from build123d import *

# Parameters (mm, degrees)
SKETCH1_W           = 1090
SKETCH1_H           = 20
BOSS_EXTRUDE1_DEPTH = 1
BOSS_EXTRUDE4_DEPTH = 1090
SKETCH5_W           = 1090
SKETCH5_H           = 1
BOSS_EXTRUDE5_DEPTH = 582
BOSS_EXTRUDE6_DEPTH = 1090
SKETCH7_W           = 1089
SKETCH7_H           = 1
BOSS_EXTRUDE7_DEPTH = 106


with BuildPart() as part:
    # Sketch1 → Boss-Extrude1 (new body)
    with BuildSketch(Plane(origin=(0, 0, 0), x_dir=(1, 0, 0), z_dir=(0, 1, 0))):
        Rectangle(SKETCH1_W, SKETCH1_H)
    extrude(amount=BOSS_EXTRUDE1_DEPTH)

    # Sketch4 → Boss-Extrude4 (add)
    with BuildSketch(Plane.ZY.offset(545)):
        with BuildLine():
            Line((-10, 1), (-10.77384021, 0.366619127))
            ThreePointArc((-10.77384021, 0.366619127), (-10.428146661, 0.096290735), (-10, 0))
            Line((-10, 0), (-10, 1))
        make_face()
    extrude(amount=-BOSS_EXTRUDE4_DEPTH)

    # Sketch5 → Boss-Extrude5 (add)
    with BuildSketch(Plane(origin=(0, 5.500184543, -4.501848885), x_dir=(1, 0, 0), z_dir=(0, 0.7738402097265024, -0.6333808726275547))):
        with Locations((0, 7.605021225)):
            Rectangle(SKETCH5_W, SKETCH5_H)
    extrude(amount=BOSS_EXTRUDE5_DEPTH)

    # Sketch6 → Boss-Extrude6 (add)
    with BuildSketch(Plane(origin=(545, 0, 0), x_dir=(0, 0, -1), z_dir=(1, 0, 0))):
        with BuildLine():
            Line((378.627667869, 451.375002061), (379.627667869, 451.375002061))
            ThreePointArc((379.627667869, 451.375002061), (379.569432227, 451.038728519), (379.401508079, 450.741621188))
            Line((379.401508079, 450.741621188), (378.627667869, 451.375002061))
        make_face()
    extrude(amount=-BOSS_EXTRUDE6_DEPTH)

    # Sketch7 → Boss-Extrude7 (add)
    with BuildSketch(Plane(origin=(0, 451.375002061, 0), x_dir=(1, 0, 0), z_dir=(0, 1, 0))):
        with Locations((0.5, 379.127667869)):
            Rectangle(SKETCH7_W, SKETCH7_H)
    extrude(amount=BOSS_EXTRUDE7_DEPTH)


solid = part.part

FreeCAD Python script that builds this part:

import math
import FreeCAD as App
import Part
import Sketcher
Q = App.Units.Quantity

doc = App.newDocument("Part")
body = doc.addObject("PartDesign::Body", "Body")

# Sketch on XZ plane
sketch1 = doc.addObject("Sketcher::SketchObject", "Sketch")
body.addObject(sketch1)
sketch1.AttachmentSupport = (doc.XZ_Plane, [""])
sketch1.MapMode = "FlatFace"
sketch1.addGeometry([
    Part.LineSegment(App.Vector(-545, -10, 0), App.Vector(-545, 10, 0)),
    Part.LineSegment(App.Vector(-545, 10, 0), App.Vector(545, 10, 0)),
    Part.LineSegment(App.Vector(545, 10, 0), App.Vector(545, -10, 0)),
    Part.LineSegment(App.Vector(545, -10, 0), App.Vector(-545, -10, 0)),
], False)
sketch1.addConstraint([
    Sketcher.Constraint("Coincident", 0, 2, 1, 1),
    Sketcher.Constraint("Coincident", 1, 2, 2, 1),
    Sketcher.Constraint("Coincident", 2, 2, 3, 1),
    Sketcher.Constraint("Coincident", 3, 2, 0, 1),
    Sketcher.Constraint("Vertical", 0),
    Sketcher.Constraint("Horizontal", 1),
    Sketcher.Constraint("Vertical", 2),
    Sketcher.Constraint("Horizontal", 3),
    Sketcher.Constraint("Symmetric", 0, 2, 2, 2, -1, 1),
    Sketcher.Constraint("DistanceX", 1, 1, 1, 2, 1090.0),
    Sketcher.Constraint("DistanceY", 0, 1, 0, 2, 20.0),
])
pad1 = doc.addObject("PartDesign::Pad", "Pad")
body.addObject(pad1)
pad1.Profile = sketch1
pad1.Length = 1
pad1.Reversed = True

# Sketch on YZ plane
sketch2 = doc.addObject("Sketcher::SketchObject", "Sketch001")
body.addObject(sketch2)
sketch2.AttachmentSupport = (doc.YZ_Plane, [""])
sketch2.MapMode = "FlatFace"
sketch2.AttachmentOffset = App.Placement(App.Vector(0, 0, -545), App.Rotation())
sketch2.addGeometry([
    Part.LineSegment(App.Vector(1, -10, 0), App.Vector(0.4, -10.8, 0)),
    Part.ArcOfCircle(Part.Circle(App.Vector(1, -10, 0), App.Vector(0, 0, 1), 1), math.radians(-180), math.radians(-129)),
    Part.LineSegment(App.Vector(0, -10, 0), App.Vector(1, -10, 0)),
], False)
sketch2.addConstraint([
    Sketcher.Constraint("Coincident", 0, 2, 1, 2),
    Sketcher.Constraint("Coincident", 1, 1, 2, 1),
    Sketcher.Constraint("Coincident", 2, 2, 0, 1),
    Sketcher.Constraint("Horizontal", 2),
    Sketcher.Constraint("Coincident", 2, 2, 1, 3),
    Sketcher.Constraint("PointOnObject", 1, 1, -2),
    Sketcher.Constraint("Radius", 1, 1.0),
    Sketcher.Constraint("DistanceY", 1, 3, -1, 1, 10.0),
    Sketcher.Constraint("Angle", 0, Q("-129.3 deg")),
])
pad2 = doc.addObject("PartDesign::Pad", "Pad001")
body.addObject(pad2)
pad2.Profile = sketch2
pad2.Length = 1090

# Sketch on an angled plane
sketch3 = doc.addObject("Sketcher::SketchObject", "Sketch002")
body.addObject(sketch3)
sketch3.Placement = App.Placement(App.Vector(0, 5.500185, -4.501849), App.Rotation(App.Vector(1, 0, 0), App.Vector(0, -0.633380873, -0.77384021), App.Vector(0, 0.77384021, -0.633380873), "ZXY"))
sketch3.addGeometry([
    Part.LineSegment(App.Vector(-545, 8.1, 0), App.Vector(-545, 7.1, 0)),
    Part.LineSegment(App.Vector(-545, 7.1, 0), App.Vector(545, 7.1, 0)),
    Part.LineSegment(App.Vector(545, 7.1, 0), App.Vector(545, 8.1, 0)),
    Part.LineSegment(App.Vector(545, 8.1, 0), App.Vector(-545, 8.1, 0)),
], False)
sketch3.addConstraint([
    Sketcher.Constraint("Coincident", 0, 2, 1, 1),
    Sketcher.Constraint("Coincident", 1, 2, 2, 1),
    Sketcher.Constraint("Coincident", 2, 2, 3, 1),
    Sketcher.Constraint("Coincident", 3, 2, 0, 1),
    Sketcher.Constraint("Vertical", 0),
    Sketcher.Constraint("Horizontal", 1),
    Sketcher.Constraint("Vertical", 2),
    Sketcher.Constraint("Horizontal", 3),
    Sketcher.Constraint("DistanceX", 1, 1, 1, 2, 1090.0),
    Sketcher.Constraint("DistanceY", 0, 2, 0, 1, 1.0),
    Sketcher.Constraint("DistanceX", 0, 2, -1, 1, 545.0),
    Sketcher.Constraint("DistanceY", -1, 1, 0, 2, 7.105021),
])
pad3 = doc.addObject("PartDesign::Pad", "Pad002")
body.addObject(pad3)
pad3.Profile = sketch3
pad3.Length = 582

# Sketch on YZ plane
sketch4 = doc.addObject("Sketcher::SketchObject", "Sketch003")
body.addObject(sketch4)
sketch4.AttachmentSupport = (doc.YZ_Plane, [""])
sketch4.MapMode = "FlatFace"
sketch4.AttachmentOffset = App.Placement(App.Vector(0, 0, 545), App.Rotation())
sketch4.addGeometry([
    Part.LineSegment(App.Vector(451.4, -379.6, 0), App.Vector(451.4, -378.6, 0)),
    Part.LineSegment(App.Vector(451.4, -378.6, 0), App.Vector(450.7, -379.4, 0)),
    Part.ArcOfCircle(Part.Circle(App.Vector(451.4, -378.6, 0), App.Vector(0, 0, 1), 1), math.radians(-129), math.radians(-90)),
], False)
sketch4.addConstraint([
    Sketcher.Constraint("Coincident", 0, 2, 1, 1),
    Sketcher.Constraint("Coincident", 1, 2, 2, 1),
    Sketcher.Constraint("Coincident", 2, 2, 0, 1),
    Sketcher.Constraint("Vertical", 0),
    Sketcher.Constraint("Coincident", 0, 2, 2, 3),
    Sketcher.Constraint("Radius", 2, 1.0),
    Sketcher.Constraint("Angle", 1, Q("-129.3 deg")),
    Sketcher.Constraint("DistanceX", -1, 1, 1, 2, 450.741621),
    Sketcher.Constraint("DistanceY", 1, 2, -1, 1, 379.401508),
])
pad4 = doc.addObject("PartDesign::Pad", "Pad003")
body.addObject(pad4)
pad4.Profile = sketch4
pad4.Length = 1090
pad4.Reversed = True

# Sketch on XZ plane
sketch5 = doc.addObject("Sketcher::SketchObject", "Sketch004")
body.addObject(sketch5)
sketch5.AttachmentSupport = (doc.XZ_Plane, [""])
sketch5.MapMode = "FlatFace"
sketch5.AttachmentOffset = App.Placement(App.Vector(0, 0, -451.375002), App.Rotation())
sketch5.addGeometry([
    Part.LineSegment(App.Vector(-544, -379.6, 0), App.Vector(-544, -378.6, 0)),
    Part.LineSegment(App.Vector(-544, -378.6, 0), App.Vector(545, -378.6, 0)),
    Part.LineSegment(App.Vector(545, -378.6, 0), App.Vector(545, -379.6, 0)),
    Part.LineSegment(App.Vector(545, -379.6, 0), App.Vector(-544, -379.6, 0)),
], False)
sketch5.addConstraint([
    Sketcher.Constraint("Coincident", 0, 2, 1, 1),
    Sketcher.Constraint("Coincident", 1, 2, 2, 1),
    Sketcher.Constraint("Coincident", 2, 2, 3, 1),
    Sketcher.Constraint("Coincident", 3, 2, 0, 1),
    Sketcher.Constraint("Vertical", 0),
    Sketcher.Constraint("Horizontal", 1),
    Sketcher.Constraint("Vertical", 2),
    Sketcher.Constraint("Horizontal", 3),
    Sketcher.Constraint("DistanceX", 1, 1, 1, 2, 1089.0),
    Sketcher.Constraint("DistanceY", 0, 1, 0, 2, 1.0),
    Sketcher.Constraint("DistanceX", 0, 2, -1, 1, 544.0),
    Sketcher.Constraint("DistanceY", 0, 2, -1, 1, 378.627668),
])
pad5 = doc.addObject("PartDesign::Pad", "Pad004")
body.addObject(pad5)
pad5.Profile = sketch5
pad5.Length = 106
pad5.Reversed = True

doc.recompute()
